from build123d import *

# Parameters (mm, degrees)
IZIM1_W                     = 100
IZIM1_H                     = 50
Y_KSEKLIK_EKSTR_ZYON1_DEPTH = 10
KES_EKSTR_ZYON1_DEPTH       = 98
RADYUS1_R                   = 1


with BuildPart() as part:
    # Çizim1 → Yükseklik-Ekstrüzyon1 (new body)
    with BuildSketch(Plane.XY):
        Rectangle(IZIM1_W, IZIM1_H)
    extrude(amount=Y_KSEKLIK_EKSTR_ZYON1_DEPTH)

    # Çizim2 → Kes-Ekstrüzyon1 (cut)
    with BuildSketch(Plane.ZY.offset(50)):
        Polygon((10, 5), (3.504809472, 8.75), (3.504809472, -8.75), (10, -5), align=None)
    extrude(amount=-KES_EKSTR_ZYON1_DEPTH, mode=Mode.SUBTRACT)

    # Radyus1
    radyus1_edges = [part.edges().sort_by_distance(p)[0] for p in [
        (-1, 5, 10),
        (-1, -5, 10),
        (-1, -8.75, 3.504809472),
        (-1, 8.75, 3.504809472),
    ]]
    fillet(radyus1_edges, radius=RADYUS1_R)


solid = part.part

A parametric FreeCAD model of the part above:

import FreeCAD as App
import Part
import Sketcher

V = App.Vector
Q = App.Units.Quantity


def edges_at(feature, points):
    """Names of the edges that pass closest to the given points."""
    edges = feature.Shape.Edges
    near = lambda p: min(range(len(edges)), key=lambda i: edges[i].distToShape(Part.Vertex(*p))[0])
    return sorted({f"Edge{near(p) + 1}" for p in points})

doc = App.newDocument("Part")
body = doc.addObject("PartDesign::Body", "Body")

sketch1 = body.newObject("Sketcher::SketchObject", "Sketch")
sketch1.AttachmentSupport = (doc.getObject("XY_Plane"), [""])
sketch1.MapMode = "FlatFace"
sketch1.addGeometry([
    Part.LineSegment(V(-50, 25, 0), V(-50, -25, 0)),
    Part.LineSegment(V(-50, -25, 0), V(50, -25, 0)),
    Part.LineSegment(V(50, -25, 0), V(50, 25, 0)),
    Part.LineSegment(V(50, 25, 0), V(-50, 25, 0)),
], False)
sketch1.addConstraint([
    Sketcher.Constraint("Coincident", 0, 2, 1, 1),
    Sketcher.Constraint("Coincident", 1, 2, 2, 1),
    Sketcher.Constraint("Coincident", 2, 2, 3, 1),
    Sketcher.Constraint("Coincident", 3, 2, 0, 1),
    Sketcher.Constraint("Vertical", 0),
    Sketcher.Constraint("Horizontal", 1),
    Sketcher.Constraint("Vertical", 2),
    Sketcher.Constraint("Horizontal", 3),
    Sketcher.Constraint("Symmetric", 0, 2, 2, 2, -1, 1),
    Sketcher.Constraint("DistanceX", 1, 1, 1, 2, Q("100 mm")),
    Sketcher.Constraint("DistanceY", 0, 2, 0, 1, Q("50 mm")),
])
pad1 = body.newObject("PartDesign::Pad", "Pad")
pad1.Profile = sketch1
pad1.Length = 10

sketch2 = body.newObject("Sketcher::SketchObject", "Sketch001")
sketch2.AttachmentSupport = (doc.getObject("YZ_Plane"), [""])
sketch2.MapMode = "FlatFace"
sketch2.AttachmentOffset = App.Placement(V(0, 0, -50), App.Rotation())
sketch2.addGeometry([
    Part.LineSegment(V(5, 10, 0), V(9, 4, 0)),
    Part.LineSegment(V(9, 4, 0), V(-9, 4, 0)),
    Part.LineSegment(V(-9, 4, 0), V(-5, 10, 0)),
    Part.LineSegment(V(-5, 10, 0), V(5, 10, 0)),
], False)
sketch2.addConstraint([
    Sketcher.Constraint("Coincident", 0, 2, 1, 1),
    Sketcher.Constraint("Coincident", 1, 2, 2, 1),
    Sketcher.Constraint("Coincident", 2, 2, 3, 1),
    Sketcher.Constraint("Coincident", 3, 2, 0, 1),
    Sketcher.Constraint("Horizontal", 1),
    Sketcher.Constraint("Horizontal", 3),
    Sketcher.Constraint("Equal", 0, 2),
    Sketcher.Constraint("DistanceX", 3, 1, 3, 2, Q("10 mm")),
    Sketcher.Constraint("Angle", 0, Q("-60 deg")),
    Sketcher.Constraint("DistanceX", 1, 2, 1, 1, Q("17.5 mm")),
    Sketcher.Constraint("DistanceX", 2, 2, -1, 1, Q("5 mm")),
    Sketcher.Constraint("DistanceY", -1, 1, 2, 2, Q("10 mm")),
])
pocket1 = body.newObject("PartDesign::Pocket", "Pocket")
pocket1.Profile = sketch2
pocket1.Length = 98
pocket1.Reversed = True
doc.recompute()

fillet = body.newObject("PartDesign::Fillet", "Fillet")
fillet.Base = (pocket1, edges_at(pocket1, [
    (-1, 5, 10),
    (-1, -5, 10),
    (-1, -8.75, 3.505),
    (-1, 8.75, 3.505),
]))
fillet.Radius = 1

doc.recompute()
